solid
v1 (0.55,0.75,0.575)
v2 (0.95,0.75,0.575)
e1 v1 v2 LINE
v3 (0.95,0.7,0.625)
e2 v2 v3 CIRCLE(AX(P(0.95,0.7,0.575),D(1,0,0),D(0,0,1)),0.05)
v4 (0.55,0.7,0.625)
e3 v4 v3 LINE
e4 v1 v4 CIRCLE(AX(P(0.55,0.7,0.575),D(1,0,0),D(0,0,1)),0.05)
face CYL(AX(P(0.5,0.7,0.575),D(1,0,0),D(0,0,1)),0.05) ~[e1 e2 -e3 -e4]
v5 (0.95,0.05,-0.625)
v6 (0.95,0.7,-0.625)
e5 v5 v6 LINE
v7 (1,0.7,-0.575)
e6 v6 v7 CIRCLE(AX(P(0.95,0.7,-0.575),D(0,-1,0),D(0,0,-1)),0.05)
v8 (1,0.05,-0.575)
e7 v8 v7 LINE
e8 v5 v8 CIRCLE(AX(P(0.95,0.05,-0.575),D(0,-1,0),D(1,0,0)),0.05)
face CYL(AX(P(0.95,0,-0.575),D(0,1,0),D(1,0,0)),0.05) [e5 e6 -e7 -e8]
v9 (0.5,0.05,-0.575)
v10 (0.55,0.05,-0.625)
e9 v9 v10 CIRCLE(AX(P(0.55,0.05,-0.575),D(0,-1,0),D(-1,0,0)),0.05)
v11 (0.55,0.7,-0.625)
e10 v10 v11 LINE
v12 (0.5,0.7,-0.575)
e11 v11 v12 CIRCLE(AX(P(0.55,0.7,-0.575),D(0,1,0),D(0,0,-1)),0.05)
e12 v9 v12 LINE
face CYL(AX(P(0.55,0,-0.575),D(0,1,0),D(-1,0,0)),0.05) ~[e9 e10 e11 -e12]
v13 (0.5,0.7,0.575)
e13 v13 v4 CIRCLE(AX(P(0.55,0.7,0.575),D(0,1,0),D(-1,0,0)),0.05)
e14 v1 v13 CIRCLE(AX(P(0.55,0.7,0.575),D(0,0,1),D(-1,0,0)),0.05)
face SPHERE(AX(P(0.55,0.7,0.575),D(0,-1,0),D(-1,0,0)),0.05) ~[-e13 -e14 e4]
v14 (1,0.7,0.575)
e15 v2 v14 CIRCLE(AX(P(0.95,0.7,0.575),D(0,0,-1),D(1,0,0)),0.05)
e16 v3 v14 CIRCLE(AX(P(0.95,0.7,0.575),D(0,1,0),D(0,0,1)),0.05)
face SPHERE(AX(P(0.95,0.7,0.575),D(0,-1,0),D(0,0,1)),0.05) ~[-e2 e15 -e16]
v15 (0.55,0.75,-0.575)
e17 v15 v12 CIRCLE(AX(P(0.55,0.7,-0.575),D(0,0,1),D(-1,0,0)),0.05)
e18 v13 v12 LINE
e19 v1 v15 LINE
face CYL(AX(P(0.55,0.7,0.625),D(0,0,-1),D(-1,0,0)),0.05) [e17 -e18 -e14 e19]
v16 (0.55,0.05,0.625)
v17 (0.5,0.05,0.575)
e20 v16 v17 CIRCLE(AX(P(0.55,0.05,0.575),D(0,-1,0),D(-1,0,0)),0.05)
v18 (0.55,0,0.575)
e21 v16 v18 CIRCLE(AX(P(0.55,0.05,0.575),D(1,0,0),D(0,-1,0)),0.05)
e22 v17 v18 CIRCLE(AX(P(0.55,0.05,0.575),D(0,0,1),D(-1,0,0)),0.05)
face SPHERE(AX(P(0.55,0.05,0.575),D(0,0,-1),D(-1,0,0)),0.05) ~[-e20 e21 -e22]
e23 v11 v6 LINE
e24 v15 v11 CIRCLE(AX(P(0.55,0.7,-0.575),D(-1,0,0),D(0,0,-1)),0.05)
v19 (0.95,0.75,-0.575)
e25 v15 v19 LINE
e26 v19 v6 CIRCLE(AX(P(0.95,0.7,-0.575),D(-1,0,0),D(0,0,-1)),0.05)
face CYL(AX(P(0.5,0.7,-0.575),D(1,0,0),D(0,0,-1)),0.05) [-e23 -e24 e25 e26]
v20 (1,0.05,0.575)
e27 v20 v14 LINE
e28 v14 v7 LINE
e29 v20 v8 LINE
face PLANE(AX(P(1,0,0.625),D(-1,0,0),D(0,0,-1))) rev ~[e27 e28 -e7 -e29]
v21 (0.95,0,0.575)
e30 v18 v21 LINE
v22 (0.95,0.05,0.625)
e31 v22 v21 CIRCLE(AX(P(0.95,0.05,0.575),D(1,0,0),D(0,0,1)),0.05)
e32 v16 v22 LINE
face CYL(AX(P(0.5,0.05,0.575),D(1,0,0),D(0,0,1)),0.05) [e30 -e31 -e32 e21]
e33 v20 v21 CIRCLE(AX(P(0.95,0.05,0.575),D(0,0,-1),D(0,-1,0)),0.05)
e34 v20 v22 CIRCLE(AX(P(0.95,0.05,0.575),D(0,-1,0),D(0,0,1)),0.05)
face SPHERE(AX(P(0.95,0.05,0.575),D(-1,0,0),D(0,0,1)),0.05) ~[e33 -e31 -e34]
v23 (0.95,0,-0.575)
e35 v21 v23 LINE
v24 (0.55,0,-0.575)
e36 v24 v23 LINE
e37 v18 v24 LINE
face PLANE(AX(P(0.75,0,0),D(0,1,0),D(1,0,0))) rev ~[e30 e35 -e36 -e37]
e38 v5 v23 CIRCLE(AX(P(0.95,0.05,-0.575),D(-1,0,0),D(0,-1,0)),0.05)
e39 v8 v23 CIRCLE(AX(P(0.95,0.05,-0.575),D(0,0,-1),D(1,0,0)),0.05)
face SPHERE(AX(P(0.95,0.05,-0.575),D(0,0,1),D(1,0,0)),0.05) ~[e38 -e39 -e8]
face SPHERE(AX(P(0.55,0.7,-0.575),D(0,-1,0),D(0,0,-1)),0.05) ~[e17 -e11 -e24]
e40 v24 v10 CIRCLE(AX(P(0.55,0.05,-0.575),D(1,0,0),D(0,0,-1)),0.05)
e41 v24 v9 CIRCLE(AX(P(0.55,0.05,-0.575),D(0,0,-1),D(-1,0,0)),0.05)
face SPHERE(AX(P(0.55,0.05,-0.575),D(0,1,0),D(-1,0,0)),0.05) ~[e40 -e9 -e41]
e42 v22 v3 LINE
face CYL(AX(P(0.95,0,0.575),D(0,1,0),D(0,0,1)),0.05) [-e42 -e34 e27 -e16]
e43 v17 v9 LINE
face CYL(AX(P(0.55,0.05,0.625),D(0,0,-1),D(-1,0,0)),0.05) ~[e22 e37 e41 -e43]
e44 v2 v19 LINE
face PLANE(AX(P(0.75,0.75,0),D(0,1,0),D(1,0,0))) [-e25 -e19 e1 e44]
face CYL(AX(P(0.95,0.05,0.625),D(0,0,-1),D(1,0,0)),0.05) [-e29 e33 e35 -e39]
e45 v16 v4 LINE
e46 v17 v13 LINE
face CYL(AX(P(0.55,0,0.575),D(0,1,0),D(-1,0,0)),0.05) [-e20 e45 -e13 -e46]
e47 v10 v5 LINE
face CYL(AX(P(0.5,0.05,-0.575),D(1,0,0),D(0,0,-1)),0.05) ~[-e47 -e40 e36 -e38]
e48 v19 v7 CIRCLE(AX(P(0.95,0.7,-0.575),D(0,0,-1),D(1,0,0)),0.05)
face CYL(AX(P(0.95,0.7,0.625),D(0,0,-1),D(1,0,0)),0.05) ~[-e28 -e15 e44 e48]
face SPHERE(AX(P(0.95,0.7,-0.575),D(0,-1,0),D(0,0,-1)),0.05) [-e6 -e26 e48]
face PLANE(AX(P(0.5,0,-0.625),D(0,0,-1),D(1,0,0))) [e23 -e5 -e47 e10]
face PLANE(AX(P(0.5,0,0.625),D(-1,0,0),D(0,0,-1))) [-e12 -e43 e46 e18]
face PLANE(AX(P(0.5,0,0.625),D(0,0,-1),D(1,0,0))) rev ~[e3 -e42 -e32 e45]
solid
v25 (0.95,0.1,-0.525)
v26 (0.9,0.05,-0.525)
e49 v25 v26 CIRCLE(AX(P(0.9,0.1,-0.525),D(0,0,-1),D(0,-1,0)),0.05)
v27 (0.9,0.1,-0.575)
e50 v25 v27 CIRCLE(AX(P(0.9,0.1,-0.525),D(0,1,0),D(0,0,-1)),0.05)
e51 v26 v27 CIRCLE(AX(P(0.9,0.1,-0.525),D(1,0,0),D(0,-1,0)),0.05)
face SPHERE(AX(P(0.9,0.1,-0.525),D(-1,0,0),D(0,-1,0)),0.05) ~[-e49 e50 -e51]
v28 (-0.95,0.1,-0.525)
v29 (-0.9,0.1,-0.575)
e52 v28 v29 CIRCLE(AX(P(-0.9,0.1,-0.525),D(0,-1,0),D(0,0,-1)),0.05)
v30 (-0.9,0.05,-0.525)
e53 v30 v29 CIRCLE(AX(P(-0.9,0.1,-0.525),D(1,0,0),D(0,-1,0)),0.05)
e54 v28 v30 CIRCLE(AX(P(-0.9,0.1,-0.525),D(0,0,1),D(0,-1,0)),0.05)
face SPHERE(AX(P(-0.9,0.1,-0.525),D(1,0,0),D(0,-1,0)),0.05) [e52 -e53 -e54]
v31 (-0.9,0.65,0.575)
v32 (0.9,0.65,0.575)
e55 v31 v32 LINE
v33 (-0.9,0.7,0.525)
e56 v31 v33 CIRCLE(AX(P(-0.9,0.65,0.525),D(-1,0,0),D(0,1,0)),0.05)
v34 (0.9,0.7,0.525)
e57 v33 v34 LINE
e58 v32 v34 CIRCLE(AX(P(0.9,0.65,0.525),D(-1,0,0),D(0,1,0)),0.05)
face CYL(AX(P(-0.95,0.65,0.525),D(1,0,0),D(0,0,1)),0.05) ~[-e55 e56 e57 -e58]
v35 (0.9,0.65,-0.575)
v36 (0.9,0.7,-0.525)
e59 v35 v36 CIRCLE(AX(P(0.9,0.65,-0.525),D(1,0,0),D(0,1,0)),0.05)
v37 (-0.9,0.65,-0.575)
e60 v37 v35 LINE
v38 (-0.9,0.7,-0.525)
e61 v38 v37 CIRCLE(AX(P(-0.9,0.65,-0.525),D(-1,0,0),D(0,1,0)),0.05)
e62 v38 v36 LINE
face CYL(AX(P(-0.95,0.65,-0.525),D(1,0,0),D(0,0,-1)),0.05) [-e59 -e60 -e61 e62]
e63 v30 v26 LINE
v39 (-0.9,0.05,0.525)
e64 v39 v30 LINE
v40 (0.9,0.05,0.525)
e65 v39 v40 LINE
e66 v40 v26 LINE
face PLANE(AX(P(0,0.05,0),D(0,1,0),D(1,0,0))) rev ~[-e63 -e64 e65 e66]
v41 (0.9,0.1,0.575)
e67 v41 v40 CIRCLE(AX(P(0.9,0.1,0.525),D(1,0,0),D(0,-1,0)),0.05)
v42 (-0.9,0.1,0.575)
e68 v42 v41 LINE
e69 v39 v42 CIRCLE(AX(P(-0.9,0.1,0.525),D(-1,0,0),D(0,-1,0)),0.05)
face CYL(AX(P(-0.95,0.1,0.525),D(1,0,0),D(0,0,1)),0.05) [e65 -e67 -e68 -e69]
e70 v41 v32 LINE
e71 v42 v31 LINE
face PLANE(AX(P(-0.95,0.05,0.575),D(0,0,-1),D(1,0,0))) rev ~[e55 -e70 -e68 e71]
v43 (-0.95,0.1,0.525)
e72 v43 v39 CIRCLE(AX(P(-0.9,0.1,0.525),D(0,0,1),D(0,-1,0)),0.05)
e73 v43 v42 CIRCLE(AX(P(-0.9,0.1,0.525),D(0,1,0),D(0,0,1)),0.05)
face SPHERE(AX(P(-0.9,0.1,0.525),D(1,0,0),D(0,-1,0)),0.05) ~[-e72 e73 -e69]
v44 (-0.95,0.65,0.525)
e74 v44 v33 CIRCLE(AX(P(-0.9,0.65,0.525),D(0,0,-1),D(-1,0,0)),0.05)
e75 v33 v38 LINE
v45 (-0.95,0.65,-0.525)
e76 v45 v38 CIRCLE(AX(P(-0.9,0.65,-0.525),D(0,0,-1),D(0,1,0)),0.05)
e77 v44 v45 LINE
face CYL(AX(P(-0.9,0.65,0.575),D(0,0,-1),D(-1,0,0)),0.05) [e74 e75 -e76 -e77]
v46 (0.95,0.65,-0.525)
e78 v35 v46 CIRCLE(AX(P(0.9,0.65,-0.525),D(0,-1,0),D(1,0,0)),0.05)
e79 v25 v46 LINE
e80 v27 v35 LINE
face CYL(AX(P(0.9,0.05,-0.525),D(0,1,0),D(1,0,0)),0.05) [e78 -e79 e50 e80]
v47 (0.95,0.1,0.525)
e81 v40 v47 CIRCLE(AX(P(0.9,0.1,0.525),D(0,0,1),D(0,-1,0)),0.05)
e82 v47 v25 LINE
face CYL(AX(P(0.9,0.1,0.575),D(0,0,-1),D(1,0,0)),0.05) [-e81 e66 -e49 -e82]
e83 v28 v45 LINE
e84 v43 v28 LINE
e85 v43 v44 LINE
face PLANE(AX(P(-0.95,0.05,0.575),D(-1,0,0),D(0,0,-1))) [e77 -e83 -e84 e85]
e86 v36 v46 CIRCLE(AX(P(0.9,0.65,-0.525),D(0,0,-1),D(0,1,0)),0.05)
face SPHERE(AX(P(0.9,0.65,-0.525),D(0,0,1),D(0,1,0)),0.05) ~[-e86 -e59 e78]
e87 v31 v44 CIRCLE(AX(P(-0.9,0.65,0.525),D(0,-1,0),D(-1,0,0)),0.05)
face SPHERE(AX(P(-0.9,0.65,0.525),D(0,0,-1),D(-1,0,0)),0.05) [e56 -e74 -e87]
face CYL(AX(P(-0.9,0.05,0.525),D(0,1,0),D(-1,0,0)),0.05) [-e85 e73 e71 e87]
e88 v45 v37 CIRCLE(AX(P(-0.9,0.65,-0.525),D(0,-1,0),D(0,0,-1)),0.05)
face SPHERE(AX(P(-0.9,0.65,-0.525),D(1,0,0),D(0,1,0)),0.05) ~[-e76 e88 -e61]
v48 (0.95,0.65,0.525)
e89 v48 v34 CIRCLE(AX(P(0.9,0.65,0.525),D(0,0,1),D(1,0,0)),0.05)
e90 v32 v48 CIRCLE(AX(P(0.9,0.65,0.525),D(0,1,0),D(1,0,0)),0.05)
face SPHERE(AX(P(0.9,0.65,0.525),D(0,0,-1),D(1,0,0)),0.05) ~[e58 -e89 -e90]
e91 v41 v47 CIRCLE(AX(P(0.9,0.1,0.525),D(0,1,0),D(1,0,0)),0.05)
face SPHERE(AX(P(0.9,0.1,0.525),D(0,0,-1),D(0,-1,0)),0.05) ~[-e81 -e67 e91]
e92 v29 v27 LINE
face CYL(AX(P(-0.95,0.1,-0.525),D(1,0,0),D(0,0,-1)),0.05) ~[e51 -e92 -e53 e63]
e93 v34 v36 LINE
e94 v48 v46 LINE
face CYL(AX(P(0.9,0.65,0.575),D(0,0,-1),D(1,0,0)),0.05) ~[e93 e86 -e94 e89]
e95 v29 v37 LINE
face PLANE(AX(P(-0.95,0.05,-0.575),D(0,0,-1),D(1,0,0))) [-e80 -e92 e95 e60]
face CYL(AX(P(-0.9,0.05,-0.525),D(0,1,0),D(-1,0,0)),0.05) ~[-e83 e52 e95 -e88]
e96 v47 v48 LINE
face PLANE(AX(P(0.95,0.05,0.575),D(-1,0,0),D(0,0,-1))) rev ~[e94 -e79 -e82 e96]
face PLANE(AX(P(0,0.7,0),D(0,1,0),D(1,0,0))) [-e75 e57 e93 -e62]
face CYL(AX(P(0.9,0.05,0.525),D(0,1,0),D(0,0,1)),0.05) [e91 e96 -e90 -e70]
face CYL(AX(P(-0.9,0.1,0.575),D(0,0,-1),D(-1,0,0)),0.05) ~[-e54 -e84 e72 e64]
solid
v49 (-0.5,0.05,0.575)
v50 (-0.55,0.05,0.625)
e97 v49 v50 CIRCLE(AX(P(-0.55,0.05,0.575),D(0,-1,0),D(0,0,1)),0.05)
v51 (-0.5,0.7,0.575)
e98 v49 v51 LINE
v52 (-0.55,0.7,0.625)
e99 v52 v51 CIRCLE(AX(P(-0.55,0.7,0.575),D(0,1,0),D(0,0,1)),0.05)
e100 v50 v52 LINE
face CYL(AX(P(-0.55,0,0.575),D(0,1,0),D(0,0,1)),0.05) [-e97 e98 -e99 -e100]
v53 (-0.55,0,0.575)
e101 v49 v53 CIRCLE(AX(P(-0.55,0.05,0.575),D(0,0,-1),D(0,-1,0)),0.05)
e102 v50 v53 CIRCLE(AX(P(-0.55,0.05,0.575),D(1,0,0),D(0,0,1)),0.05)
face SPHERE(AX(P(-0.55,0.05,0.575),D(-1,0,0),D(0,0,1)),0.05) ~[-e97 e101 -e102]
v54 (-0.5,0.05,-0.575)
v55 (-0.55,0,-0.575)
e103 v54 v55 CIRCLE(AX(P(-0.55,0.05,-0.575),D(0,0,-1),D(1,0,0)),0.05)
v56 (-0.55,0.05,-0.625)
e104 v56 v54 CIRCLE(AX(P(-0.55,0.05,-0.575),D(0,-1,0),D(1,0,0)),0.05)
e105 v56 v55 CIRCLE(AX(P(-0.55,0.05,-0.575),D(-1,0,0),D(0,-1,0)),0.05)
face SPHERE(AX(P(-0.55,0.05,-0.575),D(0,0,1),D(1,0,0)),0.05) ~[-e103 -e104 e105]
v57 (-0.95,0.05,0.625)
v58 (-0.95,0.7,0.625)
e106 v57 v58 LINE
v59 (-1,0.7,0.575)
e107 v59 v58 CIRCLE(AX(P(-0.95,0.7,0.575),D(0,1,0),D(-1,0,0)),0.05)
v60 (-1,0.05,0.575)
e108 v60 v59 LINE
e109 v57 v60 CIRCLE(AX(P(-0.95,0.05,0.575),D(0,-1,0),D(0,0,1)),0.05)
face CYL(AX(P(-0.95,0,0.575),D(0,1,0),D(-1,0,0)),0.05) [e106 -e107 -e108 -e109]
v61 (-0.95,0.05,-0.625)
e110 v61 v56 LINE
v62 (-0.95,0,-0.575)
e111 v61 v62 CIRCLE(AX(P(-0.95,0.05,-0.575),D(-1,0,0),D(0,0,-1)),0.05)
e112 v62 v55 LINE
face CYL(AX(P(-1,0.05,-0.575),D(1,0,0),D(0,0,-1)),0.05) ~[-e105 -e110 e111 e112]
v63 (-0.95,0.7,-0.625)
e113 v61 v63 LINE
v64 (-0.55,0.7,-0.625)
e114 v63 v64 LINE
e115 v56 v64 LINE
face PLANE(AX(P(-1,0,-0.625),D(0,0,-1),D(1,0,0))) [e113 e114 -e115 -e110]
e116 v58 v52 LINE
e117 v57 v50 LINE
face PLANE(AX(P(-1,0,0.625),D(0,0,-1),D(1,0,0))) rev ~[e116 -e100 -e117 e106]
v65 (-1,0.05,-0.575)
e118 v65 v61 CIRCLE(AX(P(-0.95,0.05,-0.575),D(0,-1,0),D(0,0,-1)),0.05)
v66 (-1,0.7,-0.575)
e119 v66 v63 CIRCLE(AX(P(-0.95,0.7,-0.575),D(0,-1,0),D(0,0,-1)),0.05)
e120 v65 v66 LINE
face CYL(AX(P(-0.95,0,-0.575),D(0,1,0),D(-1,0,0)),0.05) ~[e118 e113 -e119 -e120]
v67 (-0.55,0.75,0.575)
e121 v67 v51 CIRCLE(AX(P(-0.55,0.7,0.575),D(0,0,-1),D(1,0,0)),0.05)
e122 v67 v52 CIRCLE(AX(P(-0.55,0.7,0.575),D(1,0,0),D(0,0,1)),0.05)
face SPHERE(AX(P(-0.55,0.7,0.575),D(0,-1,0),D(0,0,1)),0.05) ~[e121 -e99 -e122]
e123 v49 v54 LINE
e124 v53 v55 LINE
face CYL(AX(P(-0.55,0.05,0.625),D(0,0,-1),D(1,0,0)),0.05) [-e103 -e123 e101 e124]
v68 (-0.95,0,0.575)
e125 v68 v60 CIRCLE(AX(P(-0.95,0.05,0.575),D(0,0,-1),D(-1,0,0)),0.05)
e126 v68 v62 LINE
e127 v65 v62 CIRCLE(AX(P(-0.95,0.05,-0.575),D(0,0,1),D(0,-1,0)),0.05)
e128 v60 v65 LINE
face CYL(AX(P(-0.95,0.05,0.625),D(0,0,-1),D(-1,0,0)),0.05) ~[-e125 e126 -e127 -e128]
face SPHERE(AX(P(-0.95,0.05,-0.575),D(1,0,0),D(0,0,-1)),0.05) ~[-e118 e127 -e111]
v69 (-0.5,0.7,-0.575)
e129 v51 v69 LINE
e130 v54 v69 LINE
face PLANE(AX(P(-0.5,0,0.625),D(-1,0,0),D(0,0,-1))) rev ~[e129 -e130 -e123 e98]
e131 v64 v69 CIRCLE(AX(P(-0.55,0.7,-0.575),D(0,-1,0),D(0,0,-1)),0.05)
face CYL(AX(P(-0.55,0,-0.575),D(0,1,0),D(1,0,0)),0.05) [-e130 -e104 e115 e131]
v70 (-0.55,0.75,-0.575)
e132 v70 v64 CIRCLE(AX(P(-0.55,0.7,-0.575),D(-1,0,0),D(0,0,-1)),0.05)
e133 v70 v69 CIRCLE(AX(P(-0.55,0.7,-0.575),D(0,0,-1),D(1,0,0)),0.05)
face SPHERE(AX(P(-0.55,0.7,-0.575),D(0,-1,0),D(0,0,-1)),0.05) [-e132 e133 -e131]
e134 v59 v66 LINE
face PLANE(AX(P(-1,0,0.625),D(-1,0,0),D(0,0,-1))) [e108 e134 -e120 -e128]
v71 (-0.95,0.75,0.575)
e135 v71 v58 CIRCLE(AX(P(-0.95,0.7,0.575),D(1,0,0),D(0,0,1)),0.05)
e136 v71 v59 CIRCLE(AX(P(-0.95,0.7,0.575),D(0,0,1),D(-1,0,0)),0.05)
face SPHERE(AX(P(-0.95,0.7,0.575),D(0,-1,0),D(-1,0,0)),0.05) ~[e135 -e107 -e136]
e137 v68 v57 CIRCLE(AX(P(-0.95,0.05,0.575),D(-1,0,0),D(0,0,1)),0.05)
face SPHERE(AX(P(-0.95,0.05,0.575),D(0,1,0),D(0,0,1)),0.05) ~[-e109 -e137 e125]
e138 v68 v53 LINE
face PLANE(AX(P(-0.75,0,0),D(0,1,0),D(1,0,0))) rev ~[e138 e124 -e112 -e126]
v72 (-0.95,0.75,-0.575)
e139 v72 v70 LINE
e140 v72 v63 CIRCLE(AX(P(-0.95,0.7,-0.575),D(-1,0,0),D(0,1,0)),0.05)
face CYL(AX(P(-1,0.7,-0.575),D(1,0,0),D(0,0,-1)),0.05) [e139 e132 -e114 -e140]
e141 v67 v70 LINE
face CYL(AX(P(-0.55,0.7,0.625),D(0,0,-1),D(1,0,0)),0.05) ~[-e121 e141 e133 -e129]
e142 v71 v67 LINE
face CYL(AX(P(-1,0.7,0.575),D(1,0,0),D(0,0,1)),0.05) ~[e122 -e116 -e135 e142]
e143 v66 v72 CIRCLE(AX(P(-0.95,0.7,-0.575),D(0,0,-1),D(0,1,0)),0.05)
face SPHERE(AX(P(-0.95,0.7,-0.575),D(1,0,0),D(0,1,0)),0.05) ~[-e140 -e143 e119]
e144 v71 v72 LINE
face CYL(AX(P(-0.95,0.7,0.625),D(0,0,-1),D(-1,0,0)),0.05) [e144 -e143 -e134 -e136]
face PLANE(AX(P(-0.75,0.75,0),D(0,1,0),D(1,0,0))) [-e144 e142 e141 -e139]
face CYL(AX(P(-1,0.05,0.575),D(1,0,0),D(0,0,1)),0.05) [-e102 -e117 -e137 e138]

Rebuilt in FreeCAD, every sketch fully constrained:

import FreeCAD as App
import Part
import Sketcher
from FreeCAD import Vector


def add_polygon(sketch, points):
    """Adds a closed chain of lines whose ends are joined by coincident constraints."""
    first, n = sketch.GeometryCount, len(points)
    for a, b in zip(points, points[1:] + points[:1]):
        sketch.addGeometry(Part.LineSegment(App.Vector(*a, 0), App.Vector(*b, 0)), False)
    for i in range(n):
        sketch.addConstraint(Sketcher.Constraint("Coincident", first + i, 2, first + (i + 1) % n, 1))

doc = App.newDocument("Part")
body = doc.addObject("PartDesign::Body", "Body")

sketch1 = body.newObject("Sketcher::SketchObject", "Sketch")
sketch1.AttachmentSupport = (doc.getObject("XZ_Plane"), [""])
sketch1.MapMode = "FlatFace"
sketch1.AttachmentOffset = App.Placement(Vector(0, 0, -0.05), App.Rotation())
add_polygon(sketch1, [(-0.9, -0.6), (-0.9, 0.6), (0.9, 0.6), (0.9, -0.6)])
sketch1.addConstraint([
    Sketcher.Constraint("Vertical", 0),
    Sketcher.Constraint("Horizontal", 1),
    Sketcher.Constraint("Vertical", 2),
    Sketcher.Constraint("Horizontal", 3),
    Sketcher.Constraint("Symmetric", 0, 2, 2, 2, -1, 1),
    Sketcher.Constraint("DistanceX", 1, 1, 1, 2, 1.9),
    Sketcher.Constraint("DistanceY", 0, 1, 0, 2, 1.15),
])
pad1 = body.newObject("PartDesign::Pad", "Pad")
pad1.Profile = sketch1
pad1.Length = 0.65
pad1.Reversed = True
doc.recompute()

fillet = body.newObject("PartDesign::Fillet", "Fillet")
fillet.Base = (pad1, ["Edge1"])
fillet.UseAllEdges = True
fillet.Radius = 0.05
body2 = doc.addObject("PartDesign::Body", "Body001")

sketch2 = body2.newObject("Sketcher::SketchObject", "Sketch001")
sketch2.AttachmentSupport = (doc.getObject("XZ_Plane001"), [""])
sketch2.MapMode = "FlatFace"
add_polygon(sketch2, [(-1, -0.6), (-1, 0.6), (-0.5, 0.6), (-0.5, -0.6)])
sketch2.addConstraint([
    Sketcher.Constraint("Vertical", 0),
    Sketcher.Constraint("Horizontal", 1),
    Sketcher.Constraint("Vertical", 2),
    Sketcher.Constraint("Horizontal", 3),
    Sketcher.Constraint("DistanceX", 1, 1, 1, 2, 0.5),
    Sketcher.Constraint("DistanceX", 0, 2, -1, 1, 1.0),
    Sketcher.Constraint("DistanceY", 0, 1, 0, 2, 1.25),
    Sketcher.Constraint("DistanceY", -1, 1, 0, 2, 0.625),
])
pad2 = body2.newObject("PartDesign::Pad", "Pad001")
pad2.Profile = sketch2
pad2.Length = 0.75
pad2.Reversed = True
doc.recompute()

fillet2 = body2.newObject("PartDesign::Fillet", "Fillet001")
fillet2.Base = (pad2, ["Edge1"])
fillet2.UseAllEdges = True
fillet2.Radius = 0.05
body3 = doc.addObject("PartDesign::Body", "Body002")

sketch3 = body3.newObject("Sketcher::SketchObject", "Sketch002")
sketch3.AttachmentSupport = (doc.getObject("XZ_Plane002"), [""])
sketch3.MapMode = "FlatFace"
add_polygon(sketch3, [(0.5, -0.6), (0.5, 0.6), (1, 0.6), (1, -0.6)])
sketch3.addConstraint([
    Sketcher.Constraint("Vertical", 0),
    Sketcher.Constraint("Horizontal", 1),
    Sketcher.Constraint("Vertical", 2),
    Sketcher.Constraint("Horizontal", 3),
    Sketcher.Constraint("DistanceX", 1, 1, 1, 2, 0.5),
    Sketcher.Constraint("DistanceX", -1, 1, 1, 2, 1.0),
    Sketcher.Constraint("DistanceY", 0, 1, 0, 2, 1.25),
    Sketcher.Constraint("DistanceY", -1, 1, 0, 2, 0.625),
])
pad3 = body3.newObject("PartDesign::Pad", "Pad002")
pad3.Profile = sketch3
pad3.Length = 0.75
pad3.Reversed = True
doc.recompute()

fillet3 = body3.newObject("PartDesign::Fillet", "Fillet002")
fillet3.Base = (pad3, ["Edge1"])
fillet3.UseAllEdges = True
fillet3.Radius = 0.05

doc.recompute()
